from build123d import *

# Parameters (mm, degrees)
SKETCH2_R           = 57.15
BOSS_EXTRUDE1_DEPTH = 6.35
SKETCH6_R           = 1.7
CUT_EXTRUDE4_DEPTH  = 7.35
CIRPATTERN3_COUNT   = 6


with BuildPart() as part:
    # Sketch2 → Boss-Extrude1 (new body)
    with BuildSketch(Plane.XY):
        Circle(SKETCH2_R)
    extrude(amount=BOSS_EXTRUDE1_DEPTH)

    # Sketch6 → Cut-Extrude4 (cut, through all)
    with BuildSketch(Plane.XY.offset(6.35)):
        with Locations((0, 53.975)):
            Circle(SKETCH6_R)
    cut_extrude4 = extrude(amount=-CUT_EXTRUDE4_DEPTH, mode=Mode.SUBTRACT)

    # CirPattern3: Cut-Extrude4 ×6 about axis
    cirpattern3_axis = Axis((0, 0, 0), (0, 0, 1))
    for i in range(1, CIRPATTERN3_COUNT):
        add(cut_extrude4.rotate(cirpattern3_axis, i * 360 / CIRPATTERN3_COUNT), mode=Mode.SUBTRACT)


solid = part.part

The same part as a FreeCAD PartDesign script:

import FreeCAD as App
import Part
import Sketcher
Q = App.Units.Quantity

doc = App.newDocument("Part")
body = doc.addObject("PartDesign::Body", "Body")

sketch1 = body.newObject("Sketcher::SketchObject", "Sketch")
sketch1.AttachmentSupport = (doc.getObject("XY_Plane"), [""])
sketch1.MapMode = "FlatFace"
sketch1.addGeometry(Part.Circle(App.Vector(0, 0, 0), App.Vector(0, 0, 1), 57), False)
sketch1.addConstraint(Sketcher.Constraint("Coincident", 0, 3, -1, 1))
sketch1.addConstraint(Sketcher.Constraint("Diameter", 0, Q("4.5 in")))
pad1 = body.newObject("PartDesign::Pad", "Pad")
pad1.Profile = sketch1
pad1.Length = Q("0.25 in")

sketch2 = body.newObject("Sketcher::SketchObject", "Sketch001")
sketch2.AttachmentSupport = (doc.getObject("XY_Plane"), [""])
sketch2.MapMode = "FlatFace"
sketch2.AttachmentOffset = App.Placement(App.Vector(0, 0, 0.25 * 25.4), App.Rotation())
sketch2.addGeometry(Part.Circle(App.Vector(0, 54, 0), App.Vector(0, 0, 1), 1.7), False)
sketch2.addConstraint(Sketcher.Constraint("PointOnObject", 0, 3, -2))
sketch2.addConstraint(Sketcher.Constraint("Diameter", 0, Q("3.4 mm")))
sketch2.addConstraint(Sketcher.Constraint("DistanceY", -1, 1, 0, 3, Q("2.125 in")))
pocket1 = body.newObject("PartDesign::Pocket", "Pocket")
pocket1.Profile = sketch2
pocket1.Type = "ThroughAll"
doc.recompute()

polarpattern = body.newObject("PartDesign::PolarPattern", "PolarPattern")
polarpattern.Originals = [pocket1]
polarpattern.Axis = (doc.getObject("Z_Axis"), [""])
polarpattern.Angle = 360
polarpattern.Occurrences = 6
body.Tip = polarpattern

doc.recompute()
